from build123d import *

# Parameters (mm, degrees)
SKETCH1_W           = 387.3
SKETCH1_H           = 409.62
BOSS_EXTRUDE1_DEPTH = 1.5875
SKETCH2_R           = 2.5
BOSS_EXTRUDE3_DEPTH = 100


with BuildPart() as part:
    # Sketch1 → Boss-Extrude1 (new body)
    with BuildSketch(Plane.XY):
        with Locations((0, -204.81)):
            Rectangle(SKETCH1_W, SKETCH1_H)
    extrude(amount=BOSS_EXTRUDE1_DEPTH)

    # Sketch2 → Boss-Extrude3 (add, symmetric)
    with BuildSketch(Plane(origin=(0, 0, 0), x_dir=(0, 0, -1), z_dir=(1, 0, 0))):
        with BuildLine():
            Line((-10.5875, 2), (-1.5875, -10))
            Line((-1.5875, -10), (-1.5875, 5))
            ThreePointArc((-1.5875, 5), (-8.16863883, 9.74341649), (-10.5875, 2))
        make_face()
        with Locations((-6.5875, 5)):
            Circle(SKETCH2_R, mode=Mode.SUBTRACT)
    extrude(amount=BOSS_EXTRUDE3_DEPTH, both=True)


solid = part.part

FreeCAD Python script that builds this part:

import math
import FreeCAD as App
import Part
import Sketcher

V = App.Vector


def add_polygon(sketch, points):
    """Adds a closed chain of lines whose ends are joined by coincident constraints."""
    first, n = sketch.GeometryCount, len(points)
    for a, b in zip(points, points[1:] + points[:1]):
        sketch.addGeometry(Part.LineSegment(App.Vector(*a, 0), App.Vector(*b, 0)), False)
    for i in range(n):
        sketch.addConstraint(Sketcher.Constraint("Coincident", first + i, 2, first + (i + 1) % n, 1))

doc = App.newDocument("Part")
params = doc.addObject("Spreadsheet::Sheet", "Params")
for row, (alias, value) in enumerate([
    ("sketch1_width", "387.3 mm"),
    ("sketch1_height", "409.62 mm"),
    ("pad1_length", "1.5875 mm"),
    ("sketch2_diameter", "5 mm"),
    ("sketch2_radius", "5 mm"),
    ("sketch2_width", "15 mm"),
    ("pad2_length", "200 mm"),
], start=1):
    params.set(f"A{row}", alias)
    params.set(f"B{row}", "=" + value)
    params.setAlias(f"B{row}", alias)

body = doc.addObject("PartDesign::Body", "Body")

sketch1 = doc.addObject("Sketcher::SketchObject", "Sketch")
body.addObject(sketch1)
sketch1.AttachmentSupport = (doc.XY_Plane, [""])
sketch1.MapMode = "FlatFace"
add_polygon(sketch1, [(-194, 0), (-194, -410), (194, -410), (194, 0)])
sketch1.addConstraint([
    Sketcher.Constraint("Vertical", 0),
    Sketcher.Constraint("Horizontal", 1),
    Sketcher.Constraint("Vertical", 2),
    Sketcher.Constraint("Horizontal", 3),
    Sketcher.Constraint("Symmetric", 2, 2, 3, 2, -1, 1),
    Sketcher.Constraint("DistanceX", 1, 1, 1, 2, 387.3),
    Sketcher.Constraint("DistanceY", 0, 2, 0, 1, 409.62),
])
sketch1.setExpression("Constraints[9]", "Params.sketch1_width")
sketch1.setExpression("Constraints[10]", "Params.sketch1_height")
pad1 = doc.addObject("PartDesign::Pad", "Pad")
body.addObject(pad1)
pad1.Profile = sketch1
pad1.setExpression("Length", "Params.pad1_length")

sketch2 = doc.addObject("Sketcher::SketchObject", "Sketch001")
body.addObject(sketch2)
sketch2.AttachmentSupport = (doc.YZ_Plane, [""])
sketch2.MapMode = "FlatFace"
sketch2.addGeometry([
    Part.LineSegment(V(2, 10.6, 0), V(-10, 1.6, 0)),
    Part.LineSegment(V(-10, 1.6, 0), V(5, 1.6, 0)),
    Part.ArcOfCircle(Part.Circle(V(5, 6.6, 0), V(0, 0, 1), 5), math.radians(-90), math.radians(127)),
    Part.Circle(V(5, 6.6, 0), V(0, 0, 1), 2.5),
], False)
sketch2.addConstraint([
    Sketcher.Constraint("Coincident", 0, 2, 1, 1),
    Sketcher.Constraint("Tangent", 1, 2, 2, 1),
    Sketcher.Constraint("Tangent", 2, 2, 0, 1),
    Sketcher.Constraint("Horizontal", 1),
    Sketcher.Constraint("Coincident", 3, 3, 2, 3),
    Sketcher.Constraint("Diameter", 3, 5.0),
    Sketcher.Constraint("Radius", 2, 5.0),
    Sketcher.Constraint("DistanceX", 1, 1, 1, 2, 15.0),
    Sketcher.Constraint("DistanceX", -1, 1, 2, 3, 5.0),
    Sketcher.Constraint("DistanceY", -1, 1, 2, 3, 6.5875),
])
sketch2.setExpression("Constraints[5]", "Params.sketch2_diameter")
sketch2.setExpression("Constraints[6]", "Params.sketch2_radius")
sketch2.setExpression("Constraints[7]", "Params.sketch2_width")
pad2 = doc.addObject("PartDesign::Pad", "Pad001")
body.addObject(pad2)
pad2.Profile = sketch2
pad2.setExpression("Length", "Params.pad2_length")
pad2.Midplane = True

doc.recompute()
